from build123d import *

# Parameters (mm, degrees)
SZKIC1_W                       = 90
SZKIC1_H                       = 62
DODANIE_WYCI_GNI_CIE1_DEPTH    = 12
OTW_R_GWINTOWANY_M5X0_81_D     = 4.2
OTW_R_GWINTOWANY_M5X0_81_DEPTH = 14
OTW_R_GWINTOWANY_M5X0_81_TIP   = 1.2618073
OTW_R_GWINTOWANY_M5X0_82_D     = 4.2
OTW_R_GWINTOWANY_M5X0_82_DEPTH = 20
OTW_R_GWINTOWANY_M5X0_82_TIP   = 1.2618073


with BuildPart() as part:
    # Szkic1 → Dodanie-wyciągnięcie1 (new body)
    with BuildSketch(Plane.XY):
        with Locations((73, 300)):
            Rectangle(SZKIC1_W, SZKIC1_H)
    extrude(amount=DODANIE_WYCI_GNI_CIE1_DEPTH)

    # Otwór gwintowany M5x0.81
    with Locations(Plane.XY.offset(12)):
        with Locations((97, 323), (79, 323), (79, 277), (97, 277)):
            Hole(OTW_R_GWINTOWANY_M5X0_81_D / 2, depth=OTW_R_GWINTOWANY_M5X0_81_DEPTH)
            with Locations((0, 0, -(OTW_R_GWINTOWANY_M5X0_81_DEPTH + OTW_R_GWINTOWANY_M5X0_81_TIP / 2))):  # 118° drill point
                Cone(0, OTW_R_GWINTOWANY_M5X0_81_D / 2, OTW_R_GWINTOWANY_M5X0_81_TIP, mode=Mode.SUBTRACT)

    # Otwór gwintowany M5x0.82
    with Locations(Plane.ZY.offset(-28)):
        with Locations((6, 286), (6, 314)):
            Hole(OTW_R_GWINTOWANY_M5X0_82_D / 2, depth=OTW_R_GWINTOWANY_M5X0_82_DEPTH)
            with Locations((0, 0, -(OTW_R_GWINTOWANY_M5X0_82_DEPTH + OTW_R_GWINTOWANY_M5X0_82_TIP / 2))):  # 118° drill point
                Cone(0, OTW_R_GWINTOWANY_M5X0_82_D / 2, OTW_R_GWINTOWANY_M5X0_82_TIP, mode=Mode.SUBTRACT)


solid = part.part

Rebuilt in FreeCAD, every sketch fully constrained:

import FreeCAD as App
import Part
import Sketcher
Q = App.Units.Quantity

doc = App.newDocument("Part")
body = doc.addObject("PartDesign::Body", "Body")

sketch1 = body.newObject("Sketcher::SketchObject", "Sketch")
sketch1.AttachmentSupport = (doc.getObject("XY_Plane"), [""])
sketch1.MapMode = "FlatFace"
sketch1.addGeometry([
    Part.LineSegment(App.Vector(28, 331, 0), App.Vector(28, 269, 0)),
    Part.LineSegment(App.Vector(28, 269, 0), App.Vector(118, 269, 0)),
    Part.LineSegment(App.Vector(118, 269, 0), App.Vector(118, 331, 0)),
    Part.LineSegment(App.Vector(118, 331, 0), App.Vector(28, 331, 0)),
], False)
sketch1.addConstraint([
    Sketcher.Constraint("Coincident", 0, 2, 1, 1),
    Sketcher.Constraint("Coincident", 1, 2, 2, 1),
    Sketcher.Constraint("Coincident", 2, 2, 3, 1),
    Sketcher.Constraint("Coincident", 3, 2, 0, 1),
    Sketcher.Constraint("Vertical", 0),
    Sketcher.Constraint("Horizontal", 1),
    Sketcher.Constraint("Vertical", 2),
    Sketcher.Constraint("Horizontal", 3),
    Sketcher.Constraint("DistanceX", 1, 1, 1, 2, Q("90 mm")),
    Sketcher.Constraint("DistanceY", 0, 2, 0, 1, Q("62 mm")),
    Sketcher.Constraint("DistanceX", -1, 1, 0, 2, Q("28 mm")),
    Sketcher.Constraint("DistanceY", -1, 1, 0, 2, Q("269 mm")),
])
pad1 = body.newObject("PartDesign::Pad", "Pad")
pad1.Profile = sketch1
pad1.Length = 12

sketch2 = body.newObject("Sketcher::SketchObject", "Sketch001")
sketch2.AttachmentSupport = (doc.getObject("XY_Plane"), [""])
sketch2.MapMode = "FlatFace"
sketch2.AttachmentOffset = App.Placement(App.Vector(0, 0, 12), App.Rotation())
sketch2.addGeometry([
    Part.Circle(App.Vector(97, 323, 0), App.Vector(0, 0, 1), 2.1),
    Part.Circle(App.Vector(79, 323, 0), App.Vector(0, 0, 1), 2.1),
    Part.Circle(App.Vector(79, 277, 0), App.Vector(0, 0, 1), 2.1),
    Part.Circle(App.Vector(97, 277, 0), App.Vector(0, 0, 1), 2.1),
], False)
sketch2.addConstraint([
    Sketcher.Constraint("Equal", 0, 1),
    Sketcher.Constraint("Equal", 1, 2),
    Sketcher.Constraint("Equal", 2, 3),
    Sketcher.Constraint("Horizontal", 0, 3, 1, 3),
    Sketcher.Constraint("Horizontal", 2, 3, 3, 3),
    Sketcher.Constraint("Vertical", 1, 3, 2, 3),
    Sketcher.Constraint("Vertical", 0, 3, 3, 3),
    Sketcher.Constraint("Diameter", 0, Q("4.2 mm")),
    Sketcher.Constraint("DistanceX", -1, 1, 0, 3, Q("97 mm")),
    Sketcher.Constraint("DistanceY", -1, 1, 0, 3, Q("323 mm")),
    Sketcher.Constraint("DistanceX", -1, 1, 1, 3, Q("79 mm")),
    Sketcher.Constraint("DistanceY", -1, 1, 2, 3, Q("277 mm")),
])
doc.recompute()
hole = body.newObject("PartDesign::Hole", "Hole")
hole.Profile = sketch2
hole.ThreadType = "None"
hole.Diameter = 4.2
hole.DepthType = "Dimension"
hole.Depth = 14
hole.DrillPoint = "Angled"
hole.DrillPointAngle = 118

sketch3 = body.newObject("Sketcher::SketchObject", "Sketch002")
sketch3.AttachmentSupport = (doc.getObject("YZ_Plane"), [""])
sketch3.MapMode = "FlatFace"
sketch3.AttachmentOffset = App.Placement(App.Vector(0, 0, 28), App.Rotation())
sketch3.addGeometry([
    Part.Circle(App.Vector(286, 6, 0), App.Vector(0, 0, 1), 2.1),
    Part.Circle(App.Vector(314, 6, 0), App.Vector(0, 0, 1), 2.1),
], False)
sketch3.addConstraint([
    Sketcher.Constraint("Equal", 0, 1),
    Sketcher.Constraint("Horizontal", 0, 3, 1, 3),
    Sketcher.Constraint("Diameter", 0, Q("4.2 mm")),
    Sketcher.Constraint("DistanceX", -1, 1, 0, 3, Q("286 mm")),
    Sketcher.Constraint("DistanceY", -1, 1, 0, 3, Q("6 mm")),
    Sketcher.Constraint("DistanceX", -1, 1, 1, 3, Q("314 mm")),
])
doc.recompute()
hole2 = body.newObject("PartDesign::Hole", "Hole001")
hole2.Profile = sketch3
hole2.ThreadType = "None"
hole2.Diameter = 4.2
hole2.DepthType = "Dimension"
hole2.Depth = 20
hole2.DrillPoint = "Angled"
hole2.DrillPointAngle = 118
hole2.Reversed = True

doc.recompute()
